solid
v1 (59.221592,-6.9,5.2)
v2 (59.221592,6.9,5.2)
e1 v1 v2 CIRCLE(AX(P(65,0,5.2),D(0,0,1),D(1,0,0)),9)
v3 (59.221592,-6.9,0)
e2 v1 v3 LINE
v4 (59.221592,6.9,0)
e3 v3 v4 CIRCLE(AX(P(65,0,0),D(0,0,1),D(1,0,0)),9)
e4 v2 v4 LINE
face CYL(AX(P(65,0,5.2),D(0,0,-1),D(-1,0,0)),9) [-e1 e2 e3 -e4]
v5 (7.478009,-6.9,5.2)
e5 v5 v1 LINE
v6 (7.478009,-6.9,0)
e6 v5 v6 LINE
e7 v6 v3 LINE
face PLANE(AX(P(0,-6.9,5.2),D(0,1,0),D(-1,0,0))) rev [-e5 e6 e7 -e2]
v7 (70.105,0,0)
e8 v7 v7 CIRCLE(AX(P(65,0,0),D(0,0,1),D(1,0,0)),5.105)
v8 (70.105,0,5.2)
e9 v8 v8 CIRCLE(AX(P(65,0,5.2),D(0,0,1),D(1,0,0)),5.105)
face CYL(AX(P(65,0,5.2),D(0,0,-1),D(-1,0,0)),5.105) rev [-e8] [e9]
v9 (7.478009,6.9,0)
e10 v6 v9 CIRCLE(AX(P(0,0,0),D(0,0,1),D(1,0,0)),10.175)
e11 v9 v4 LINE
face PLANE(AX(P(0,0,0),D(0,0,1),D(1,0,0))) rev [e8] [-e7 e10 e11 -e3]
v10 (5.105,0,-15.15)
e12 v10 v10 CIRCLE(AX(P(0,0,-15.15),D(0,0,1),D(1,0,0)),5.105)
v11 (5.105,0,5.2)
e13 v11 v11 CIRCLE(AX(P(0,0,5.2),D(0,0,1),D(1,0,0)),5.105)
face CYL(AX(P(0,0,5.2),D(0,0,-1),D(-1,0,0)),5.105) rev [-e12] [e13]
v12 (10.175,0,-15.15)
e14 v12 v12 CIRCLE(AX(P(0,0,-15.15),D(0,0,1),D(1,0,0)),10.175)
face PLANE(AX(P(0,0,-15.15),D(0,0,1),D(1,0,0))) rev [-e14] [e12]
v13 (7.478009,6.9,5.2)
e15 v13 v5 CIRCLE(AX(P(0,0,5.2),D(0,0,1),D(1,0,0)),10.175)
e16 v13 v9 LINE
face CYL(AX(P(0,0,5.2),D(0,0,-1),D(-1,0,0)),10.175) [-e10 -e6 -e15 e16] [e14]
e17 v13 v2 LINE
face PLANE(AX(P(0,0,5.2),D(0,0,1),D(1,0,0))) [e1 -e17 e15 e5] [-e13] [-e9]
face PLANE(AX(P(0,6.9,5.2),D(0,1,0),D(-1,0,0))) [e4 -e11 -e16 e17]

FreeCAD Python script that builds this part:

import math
import FreeCAD as App
import Part
import Sketcher

V = App.Vector

doc = App.newDocument("Part")
body = doc.addObject("PartDesign::Body", "Body")

# Sketch on XY plane
sketch1 = body.newObject("Sketcher::SketchObject", "Sketch")
sketch1.AttachmentSupport = (doc.getObject("XY_Plane"), [""])
sketch1.MapMode = "FlatFace"
sketch1.addGeometry([
    Part.LineSegment(V(59.221592, 6.9, 0), V(7.478009, 6.9, 0)),  # 0
    Part.ArcOfCircle(Part.Circle(V(0, 0, 0), V(0, 0, 1), 10.175), math.radians(42.697896), math.radians(317.302104)),  # 1
    Part.LineSegment(V(7.478009, -6.9, 0), V(59.221592, -6.9, 0)),  # 2
    Part.ArcOfCircle(Part.Circle(V(65, 0, 0), V(0, 0, 1), 9), math.radians(-129.944505), math.radians(129.944505)),  # 3
    Part.Circle(V(0, 0, 0), V(0, 0, 1), 5.105),  # 4
    Part.Circle(V(65, 0, 0), V(0, 0, 1), 5.105),  # 5
], False)
sketch1.addConstraint([
    Sketcher.Constraint("Coincident", 0, 2, 1, 1),
    Sketcher.Constraint("Coincident", 1, 2, 2, 1),
    Sketcher.Constraint("Coincident", 2, 2, 3, 1),
    Sketcher.Constraint("Coincident", 3, 2, 0, 1),
    Sketcher.Constraint("Horizontal", 0),
    Sketcher.Constraint("Horizontal", 2),
    Sketcher.Constraint("Coincident", 1, 3, -1, 1),
    Sketcher.Constraint("Coincident", 4, 3, -1, 1),
    Sketcher.Constraint("Coincident", 5, 3, 3, 3),
    Sketcher.Constraint("Equal", 4, 5),
    Sketcher.Constraint("Symmetric", 2, 2, 3, 2, -1),
    Sketcher.Constraint("Radius", 3, 9.0),
    Sketcher.Constraint("Diameter", 4, 10.21),
    Sketcher.Constraint("DistanceX", -1, 1, 3, 3, 65.0),
    Sketcher.Constraint("Radius", 1, 10.175),
    Sketcher.Constraint("DistanceY", -1, 1, 0, 2, 6.9),
])
pad1 = body.newObject("PartDesign::Pad", "Pad")
pad1.Profile = sketch1
pad1.Length = 5.2

# Sketch on XY plane
sketch2 = body.newObject("Sketcher::SketchObject", "Sketch001")
sketch2.AttachmentSupport = (doc.getObject("XY_Plane"), [""])
sketch2.MapMode = "FlatFace"
sketch2.AttachmentOffset = App.Placement(V(0, 0, -15.15), App.Rotation())
sketch2.addGeometry([
    Part.Circle(V(0, 0, 0), V(0, 0, 1), 10.175),
    Part.Circle(V(0, 0, 0), V(0, 0, 1), 5.105),
], False)
sketch2.addConstraint([
    Sketcher.Constraint("Coincident", 0, 3, -1, 1),
    Sketcher.Constraint("Coincident", 1, 3, -1, 1),
    Sketcher.Constraint("Diameter", 0, 20.35),
    Sketcher.Constraint("Diameter", 1, 10.21),
])
pad2 = body.newObject("PartDesign::Pad", "Pad001")
pad2.Profile = sketch2
pad2.Length = 15.15

doc.recompute()
